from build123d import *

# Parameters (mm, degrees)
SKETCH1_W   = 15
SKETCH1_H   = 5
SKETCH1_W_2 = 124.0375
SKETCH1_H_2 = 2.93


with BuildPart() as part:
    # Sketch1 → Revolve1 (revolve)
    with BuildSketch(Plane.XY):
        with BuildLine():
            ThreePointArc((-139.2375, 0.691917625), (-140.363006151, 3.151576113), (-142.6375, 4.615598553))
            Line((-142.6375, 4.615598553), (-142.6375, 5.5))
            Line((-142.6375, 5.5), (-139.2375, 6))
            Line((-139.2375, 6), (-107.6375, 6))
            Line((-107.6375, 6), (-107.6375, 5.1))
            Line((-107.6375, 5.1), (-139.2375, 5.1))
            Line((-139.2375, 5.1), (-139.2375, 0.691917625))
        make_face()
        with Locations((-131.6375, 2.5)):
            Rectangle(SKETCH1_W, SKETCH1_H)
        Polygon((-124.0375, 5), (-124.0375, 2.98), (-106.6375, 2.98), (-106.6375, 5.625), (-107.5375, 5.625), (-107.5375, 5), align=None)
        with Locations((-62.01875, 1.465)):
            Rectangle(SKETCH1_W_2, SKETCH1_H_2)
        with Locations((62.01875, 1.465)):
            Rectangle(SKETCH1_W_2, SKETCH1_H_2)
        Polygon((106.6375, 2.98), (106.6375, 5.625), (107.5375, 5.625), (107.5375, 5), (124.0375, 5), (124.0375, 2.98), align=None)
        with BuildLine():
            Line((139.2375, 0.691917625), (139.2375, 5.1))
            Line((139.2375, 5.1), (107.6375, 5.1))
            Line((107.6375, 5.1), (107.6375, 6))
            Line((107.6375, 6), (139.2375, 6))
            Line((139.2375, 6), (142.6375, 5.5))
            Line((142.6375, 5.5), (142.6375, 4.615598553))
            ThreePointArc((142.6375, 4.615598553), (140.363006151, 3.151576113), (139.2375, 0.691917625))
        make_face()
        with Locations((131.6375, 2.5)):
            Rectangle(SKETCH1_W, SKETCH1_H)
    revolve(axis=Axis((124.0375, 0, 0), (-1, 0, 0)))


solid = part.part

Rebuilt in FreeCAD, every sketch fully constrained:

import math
import FreeCAD as App
import Part
import Sketcher
Q = App.Units.Quantity

doc = App.newDocument("Part")
params = doc.addObject("Spreadsheet::Sheet", "Params")
for row, (alias, value) in enumerate([
    ("sketch1_width", "15 mm"),
    ("sketch1_height", "5 mm"),
    ("sketch1_width2", "31.6 mm"),
    ("sketch1_width3", "17.4 mm"),
    ("sketch1_width4", "0.9 mm"),
    ("revolution_angle", "360 deg"),
], start=1):
    params.set(f"A{row}", alias)
    params.set(f"B{row}", "=" + value)
    params.setAlias(f"B{row}", alias)

body = doc.addObject("PartDesign::Body", "Body")
body.AllowCompound = True

# Sketch on XY plane
sketch1 = body.newObject("Sketcher::SketchObject", "Sketch")
sketch1.AttachmentSupport = (doc.getObject("XY_Plane"), [""])
sketch1.MapMode = "FlatFace"
sketch1.addGeometry(Part.ArcOfCircle(Part.Circle(App.Vector(-144, 0, 0), App.Vector(0, 0, 1), 4.8125), math.radians(8.266354), math.radians(73.553682)), False)
sketch1.addGeometry(Part.LineSegment(App.Vector(-139.2375, 0.691918, 0), App.Vector(-139.2375, 5.1, 0)), False)
sketch1.addGeometry(Part.LineSegment(App.Vector(-139.2375, 5.1, 0), App.Vector(-107.6375, 5.1, 0)), False)
sketch1.addGeometry(Part.LineSegment(App.Vector(-107.6375, 5.1, 0), App.Vector(-107.6375, 6, 0)), False)
sketch1.addGeometry(Part.LineSegment(App.Vector(-107.6375, 6, 0), App.Vector(-139.2375, 6, 0)), False)
sketch1.addGeometry(Part.LineSegment(App.Vector(-139.2375, 6, 0), App.Vector(-142.6375, 5.5, 0)), False)
sketch1.addGeometry(Part.LineSegment(App.Vector(-142.6375, 5.5, 0), App.Vector(-142.6375, 4.615599, 0)), False)
sketch1.addGeometry(Part.LineSegment(App.Vector(-139.1375, 5, 0), App.Vector(-139.1375, 0, 0)), False)
sketch1.addGeometry(Part.LineSegment(App.Vector(-139.1375, 0, 0), App.Vector(-124.1375, 0, 0)), False)
sketch1.addGeometry(Part.LineSegment(App.Vector(-124.1375, 0, 0), App.Vector(-124.1375, 5, 0)), False)
sketch1.addGeometry(Part.LineSegment(App.Vector(-124.1375, 5, 0), App.Vector(-139.1375, 5, 0)), False)
sketch1.addGeometry(Part.LineSegment(App.Vector(-124.0375, 5, 0), App.Vector(-124.0375, 2.98, 0)), False)
sketch1.addGeometry(Part.LineSegment(App.Vector(-124.0375, 2.98, 0), App.Vector(-106.6375, 2.98, 0)), False)
sketch1.addGeometry(Part.LineSegment(App.Vector(-106.6375, 2.98, 0), App.Vector(-106.6375, 5.625, 0)), False)
sketch1.addGeometry(Part.LineSegment(App.Vector(-106.6375, 5.625, 0), App.Vector(-107.5375, 5.625, 0)), False)
sketch1.addGeometry(Part.LineSegment(App.Vector(-107.5375, 5.625, 0), App.Vector(-107.5375, 5, 0)), False)
sketch1.addGeometry(Part.LineSegment(App.Vector(-107.5375, 5, 0), App.Vector(-124.0375, 5, 0)), False)
sketch1.addGeometry(Part.LineSegment(App.Vector(-124.0375, 2.93, 0), App.Vector(-124.0375, 0, 0)), False)
sketch1.addGeometry(Part.LineSegment(App.Vector(-124.0375, 0, 0), App.Vector(124.0375, 0, 0)), False)
sketch1.addGeometry(Part.LineSegment(App.Vector(124.0375, 0, 0), App.Vector(124.0375, 2.93, 0)), False)
sketch1.addGeometry(Part.LineSegment(App.Vector(124.0375, 2.93, 0), App.Vector(-124.0375, 2.93, 0)), False)
sketch1.addGeometry(Part.LineSegment(App.Vector(106.6375, 5.625, 0), App.Vector(106.6375, 2.98, 0)), False)
sketch1.addGeometry(Part.LineSegment(App.Vector(106.6375, 2.98, 0), App.Vector(124.0375, 2.98, 0)), False)
sketch1.addGeometry(Part.LineSegment(App.Vector(124.0375, 2.98, 0), App.Vector(124.0375, 5, 0)), False)
sketch1.addGeometry(Part.LineSegment(App.Vector(124.0375, 5, 0), App.Vector(107.5375, 5, 0)), False)
sketch1.addGeometry(Part.LineSegment(App.Vector(107.5375, 5, 0), App.Vector(107.5375, 5.625, 0)), False)
sketch1.addGeometry(Part.LineSegment(App.Vector(107.5375, 5.625, 0), App.Vector(106.6375, 5.625, 0)), False)
sketch1.addGeometry(Part.LineSegment(App.Vector(139.2375, 5.1, 0), App.Vector(139.2375, 0.691918, 0)), False)
sketch1.addGeometry(Part.ArcOfCircle(Part.Circle(App.Vector(144, 0, 0), App.Vector(0, 0, 1), 4.8125), math.radians(106.446318), math.radians(171.733646)), False)
sketch1.addGeometry(Part.LineSegment(App.Vector(142.6375, 4.615599, 0), App.Vector(142.6375, 5.5, 0)), False)
sketch1.addGeometry(Part.LineSegment(App.Vector(142.6375, 5.5, 0), App.Vector(139.2375, 6, 0)), False)
sketch1.addGeometry(Part.LineSegment(App.Vector(139.2375, 6, 0), App.Vector(107.6375, 6, 0)), False)
sketch1.addGeometry(Part.LineSegment(App.Vector(107.6375, 6, 0), App.Vector(107.6375, 5.1, 0)), False)
sketch1.addGeometry(Part.LineSegment(App.Vector(107.6375, 5.1, 0), App.Vector(139.2375, 5.1, 0)), False)
sketch1.addGeometry(Part.LineSegment(App.Vector(124.1375, 5, 0), App.Vector(124.1375, 0, 0)), False)
sketch1.addGeometry(Part.LineSegment(App.Vector(124.1375, 0, 0), App.Vector(139.1375, 0, 0)), False)
sketch1.addGeometry(Part.LineSegment(App.Vector(139.1375, 0, 0), App.Vector(139.1375, 5, 0)), False)
sketch1.addGeometry(Part.LineSegment(App.Vector(139.1375, 5, 0), App.Vector(124.1375, 5, 0)), False)
sketch1.addConstraint(Sketcher.Constraint("Coincident", 0, 1, 1, 1))
sketch1.addConstraint(Sketcher.Constraint("Coincident", 1, 2, 2, 1))
sketch1.addConstraint(Sketcher.Constraint("Coincident", 2, 2, 3, 1))
sketch1.addConstraint(Sketcher.Constraint("Coincident", 3, 2, 4, 1))
sketch1.addConstraint(Sketcher.Constraint("Coincident", 4, 2, 5, 1))
sketch1.addConstraint(Sketcher.Constraint("Coincident", 5, 2, 6, 1))
sketch1.addConstraint(Sketcher.Constraint("Coincident", 6, 2, 0, 2))
sketch1.addConstraint(Sketcher.Constraint("Coincident", 7, 2, 8, 1))
sketch1.addConstraint(Sketcher.Constraint("Coincident", 8, 2, 9, 1))
sketch1.addConstraint(Sketcher.Constraint("Coincident", 9, 2, 10, 1))
sketch1.addConstraint(Sketcher.Constraint("Coincident", 10, 2, 7, 1))
sketch1.addConstraint(Sketcher.Constraint("Coincident", 11, 2, 12, 1))
sketch1.addConstraint(Sketcher.Constraint("Coincident", 12, 2, 13, 1))
sketch1.addConstraint(Sketcher.Constraint("Coincident", 13, 2, 14, 1))
sketch1.addConstraint(Sketcher.Constraint("Coincident", 14, 2, 15, 1))
sketch1.addConstraint(Sketcher.Constraint("Coincident", 15, 2, 16, 1))
sketch1.addConstraint(Sketcher.Constraint("Coincident", 16, 2, 11, 1))
sketch1.addConstraint(Sketcher.Constraint("Coincident", 17, 2, 18, 1))
sketch1.addConstraint(Sketcher.Constraint("Coincident", 18, 2, 19, 1))
sketch1.addConstraint(Sketcher.Constraint("Coincident", 19, 2, 20, 1))
sketch1.addConstraint(Sketcher.Constraint("Coincident", 20, 2, 17, 1))
sketch1.addConstraint(Sketcher.Constraint("Coincident", 21, 2, 22, 1))
sketch1.addConstraint(Sketcher.Constraint("Coincident", 22, 2, 23, 1))
sketch1.addConstraint(Sketcher.Constraint("Coincident", 23, 2, 24, 1))
sketch1.addConstraint(Sketcher.Constraint("Coincident", 24, 2, 25, 1))
sketch1.addConstraint(Sketcher.Constraint("Coincident", 25, 2, 26, 1))
sketch1.addConstraint(Sketcher.Constraint("Coincident", 26, 2, 21, 1))
sketch1.addConstraint(Sketcher.Constraint("Coincident", 27, 2, 28, 2))
sketch1.addConstraint(Sketcher.Constraint("Coincident", 28, 1, 29, 1))
sketch1.addConstraint(Sketcher.Constraint("Coincident", 29, 2, 30, 1))
sketch1.addConstraint(Sketcher.Constraint("Coincident", 30, 2, 31, 1))
sketch1.addConstraint(Sketcher.Constraint("Coincident", 31, 2, 32, 1))
sketch1.addConstraint(Sketcher.Constraint("Coincident", 32, 2, 33, 1))
sketch1.addConstraint(Sketcher.Constraint("Coincident", 33, 2, 27, 1))
sketch1.addConstraint(Sketcher.Constraint("Coincident", 34, 2, 35, 1))
sketch1.addConstraint(Sketcher.Constraint("Coincident", 35, 2, 36, 1))
sketch1.addConstraint(Sketcher.Constraint("Coincident", 36, 2, 37, 1))
sketch1.addConstraint(Sketcher.Constraint("Coincident", 37, 2, 34, 1))
sketch1.addConstraint(Sketcher.Constraint("Vertical", 1))
sketch1.addConstraint(Sketcher.Constraint("Horizontal", 2))
sketch1.addConstraint(Sketcher.Constraint("Vertical", 3))
sketch1.addConstraint(Sketcher.Constraint("Horizontal", 4))
sketch1.addConstraint(Sketcher.Constraint("Vertical", 6))
sketch1.addConstraint(Sketcher.Constraint("Vertical", 7))
sketch1.addConstraint(Sketcher.Constraint("Horizontal", 8))
sketch1.addConstraint(Sketcher.Constraint("Vertical", 9))
sketch1.addConstraint(Sketcher.Constraint("Horizontal", 10))
sketch1.addConstraint(Sketcher.Constraint("Vertical", 11))
sketch1.addConstraint(Sketcher.Constraint("Horizontal", 12))
sketch1.addConstraint(Sketcher.Constraint("Vertical", 13))
sketch1.addConstraint(Sketcher.Constraint("Horizontal", 14))
sketch1.addConstraint(Sketcher.Constraint("Vertical", 15))
sketch1.addConstraint(Sketcher.Constraint("Horizontal", 16))
sketch1.addConstraint(Sketcher.Constraint("Vertical", 17))
sketch1.addConstraint(Sketcher.Constraint("Horizontal", 18))
sketch1.addConstraint(Sketcher.Constraint("Vertical", 19))
sketch1.addConstraint(Sketcher.Constraint("Horizontal", 20))
sketch1.addConstraint(Sketcher.Constraint("Vertical", 21))
sketch1.addConstraint(Sketcher.Constraint("Horizontal", 22))
sketch1.addConstraint(Sketcher.Constraint("Vertical", 23))
sketch1.addConstraint(Sketcher.Constraint("Horizontal", 24))
sketch1.addConstraint(Sketcher.Constraint("Vertical", 25))
sketch1.addConstraint(Sketcher.Constraint("Horizontal", 26))
sketch1.addConstraint(Sketcher.Constraint("Vertical", 27))
sketch1.addConstraint(Sketcher.Constraint("Vertical", 29))
sketch1.addConstraint(Sketcher.Constraint("Horizontal", 31))
sketch1.addConstraint(Sketcher.Constraint("Vertical", 32))
sketch1.addConstraint(Sketcher.Constraint("Horizontal", 33))
sketch1.addConstraint(Sketcher.Constraint("Vertical", 34))
sketch1.addConstraint(Sketcher.Constraint("Horizontal", 35))
sketch1.addConstraint(Sketcher.Constraint("Vertical", 36))
sketch1.addConstraint(Sketcher.Constraint("Horizontal", 37))
sketch1.addConstraint(Sketcher.Constraint("Equal", 0, 28))
sketch1.addConstraint(Sketcher.Constraint("Symmetric", 0, 3, 28, 3, -1, 1))
sketch1.addConstraint(Sketcher.Constraint("Symmetric", 17, 2, 18, 2, -1, 1))
sketch1.addConstraint(Sketcher.Constraint("Symmetric", 8, 2, 34, 2, -1, 1))
sketch1.addConstraint(Sketcher.Constraint("Symmetric", 12, 2, 21, 2, -2))
sketch1.addConstraint(Sketcher.Constraint("Symmetric", 16, 2, 23, 2, -2))
sketch1.addConstraint(Sketcher.Constraint("Symmetric", 14, 2, 25, 2, -2))
sketch1.addConstraint(Sketcher.Constraint("Symmetric", 0, 1, 27, 2, -2))
sketch1.addConstraint(Sketcher.Constraint("Symmetric", 5, 2, 29, 2, -2))
sketch1.addConstraint(Sketcher.Constraint("Symmetric", 4, 2, 30, 2, -2))
sketch1.addConstraint(Sketcher.Constraint("Symmetric", 2, 2, 32, 2, -2))
sketch1.addConstraint(Sketcher.Constraint("Symmetric", 7, 2, 35, 2, -2))
sketch1.addConstraint(Sketcher.Constraint("Horizontal", 10, 2, 15, 2))
sketch1.addConstraint(Sketcher.Constraint("Horizontal", 24, 2, 36, 2))
sketch1.addConstraint(Sketcher.Constraint("Vertical", 1, 2, 4, 2))
sketch1.addConstraint(Sketcher.Constraint("Vertical", 16, 2, 17, 2))
sketch1.addConstraint(Sketcher.Constraint("Equal", 26, 3))
sketch1.addConstraint(Sketcher.Constraint("DistanceX", 8, 1, 8, 2, Q("15 mm")))
sketch1.addConstraint(Sketcher.Constraint("DistanceY", 7, 2, 7, 1, Q("5 mm")))
sketch1.addConstraint(Sketcher.Constraint("DistanceX", 2, 1, 2, 2, Q("31.6 mm")))
sketch1.addConstraint(Sketcher.Constraint("DistanceX", 12, 1, 12, 2, Q("17.4 mm")))
sketch1.addConstraint(Sketcher.Constraint("DistanceX", 14, 2, 14, 1, Q("0.9 mm")))
sketch1.addConstraint(Sketcher.Constraint("DistanceX", 0, 3, -1, 1, Q("144 mm")))
sketch1.addConstraint(Sketcher.Constraint("DistanceY", -1, 1, 3, 2, Q("6 mm")))
sketch1.addConstraint(Sketcher.Constraint("DistanceX", 5, 2, 2, 2, Q("35 mm")))
sketch1.addConstraint(Sketcher.Constraint("DistanceX", 2, 2, 12, 2, Q("1 mm")))
sketch1.addConstraint(Sketcher.Constraint("DistanceY", 11, 2, 11, 1, Q("2.02 mm")))
sketch1.addConstraint(Sketcher.Constraint("DistanceY", 17, 2, 17, 1, Q("2.93 mm")))
sketch1.addConstraint(Sketcher.Constraint("DistanceY", -1, 1, 5, 2, Q("5.5 mm")))
sketch1.addConstraint(Sketcher.Constraint("Radius", 0, Q("4.8125 mm")))
sketch1.addConstraint(Sketcher.Constraint("DistanceX", 0, 1, 7, 2, Q("0.1 mm")))
sketch1.addConstraint(Sketcher.Constraint("DistanceX", 18, 1, 18, 2, Q("248.075 mm")))
sketch1.addConstraint(Sketcher.Constraint("DistanceY", 13, 1, 13, 2, Q("2.645 mm")))
sketch1.setExpression("Constraints[89]", "Params.sketch1_width")
sketch1.setExpression("Constraints[90]", "Params.sketch1_height")
sketch1.setExpression("Constraints[91]", "Params.sketch1_width2")
sketch1.setExpression("Constraints[92]", "Params.sketch1_width3")
sketch1.setExpression("Constraints[93]", "Params.sketch1_width4")
revolution = body.newObject("PartDesign::Revolution", "Revolution")
revolution.Profile = sketch1
revolution.ReferenceAxis = (sketch1, ["H_Axis"])
revolution.setExpression("Angle", "Params.revolution_angle")

doc.recompute()
